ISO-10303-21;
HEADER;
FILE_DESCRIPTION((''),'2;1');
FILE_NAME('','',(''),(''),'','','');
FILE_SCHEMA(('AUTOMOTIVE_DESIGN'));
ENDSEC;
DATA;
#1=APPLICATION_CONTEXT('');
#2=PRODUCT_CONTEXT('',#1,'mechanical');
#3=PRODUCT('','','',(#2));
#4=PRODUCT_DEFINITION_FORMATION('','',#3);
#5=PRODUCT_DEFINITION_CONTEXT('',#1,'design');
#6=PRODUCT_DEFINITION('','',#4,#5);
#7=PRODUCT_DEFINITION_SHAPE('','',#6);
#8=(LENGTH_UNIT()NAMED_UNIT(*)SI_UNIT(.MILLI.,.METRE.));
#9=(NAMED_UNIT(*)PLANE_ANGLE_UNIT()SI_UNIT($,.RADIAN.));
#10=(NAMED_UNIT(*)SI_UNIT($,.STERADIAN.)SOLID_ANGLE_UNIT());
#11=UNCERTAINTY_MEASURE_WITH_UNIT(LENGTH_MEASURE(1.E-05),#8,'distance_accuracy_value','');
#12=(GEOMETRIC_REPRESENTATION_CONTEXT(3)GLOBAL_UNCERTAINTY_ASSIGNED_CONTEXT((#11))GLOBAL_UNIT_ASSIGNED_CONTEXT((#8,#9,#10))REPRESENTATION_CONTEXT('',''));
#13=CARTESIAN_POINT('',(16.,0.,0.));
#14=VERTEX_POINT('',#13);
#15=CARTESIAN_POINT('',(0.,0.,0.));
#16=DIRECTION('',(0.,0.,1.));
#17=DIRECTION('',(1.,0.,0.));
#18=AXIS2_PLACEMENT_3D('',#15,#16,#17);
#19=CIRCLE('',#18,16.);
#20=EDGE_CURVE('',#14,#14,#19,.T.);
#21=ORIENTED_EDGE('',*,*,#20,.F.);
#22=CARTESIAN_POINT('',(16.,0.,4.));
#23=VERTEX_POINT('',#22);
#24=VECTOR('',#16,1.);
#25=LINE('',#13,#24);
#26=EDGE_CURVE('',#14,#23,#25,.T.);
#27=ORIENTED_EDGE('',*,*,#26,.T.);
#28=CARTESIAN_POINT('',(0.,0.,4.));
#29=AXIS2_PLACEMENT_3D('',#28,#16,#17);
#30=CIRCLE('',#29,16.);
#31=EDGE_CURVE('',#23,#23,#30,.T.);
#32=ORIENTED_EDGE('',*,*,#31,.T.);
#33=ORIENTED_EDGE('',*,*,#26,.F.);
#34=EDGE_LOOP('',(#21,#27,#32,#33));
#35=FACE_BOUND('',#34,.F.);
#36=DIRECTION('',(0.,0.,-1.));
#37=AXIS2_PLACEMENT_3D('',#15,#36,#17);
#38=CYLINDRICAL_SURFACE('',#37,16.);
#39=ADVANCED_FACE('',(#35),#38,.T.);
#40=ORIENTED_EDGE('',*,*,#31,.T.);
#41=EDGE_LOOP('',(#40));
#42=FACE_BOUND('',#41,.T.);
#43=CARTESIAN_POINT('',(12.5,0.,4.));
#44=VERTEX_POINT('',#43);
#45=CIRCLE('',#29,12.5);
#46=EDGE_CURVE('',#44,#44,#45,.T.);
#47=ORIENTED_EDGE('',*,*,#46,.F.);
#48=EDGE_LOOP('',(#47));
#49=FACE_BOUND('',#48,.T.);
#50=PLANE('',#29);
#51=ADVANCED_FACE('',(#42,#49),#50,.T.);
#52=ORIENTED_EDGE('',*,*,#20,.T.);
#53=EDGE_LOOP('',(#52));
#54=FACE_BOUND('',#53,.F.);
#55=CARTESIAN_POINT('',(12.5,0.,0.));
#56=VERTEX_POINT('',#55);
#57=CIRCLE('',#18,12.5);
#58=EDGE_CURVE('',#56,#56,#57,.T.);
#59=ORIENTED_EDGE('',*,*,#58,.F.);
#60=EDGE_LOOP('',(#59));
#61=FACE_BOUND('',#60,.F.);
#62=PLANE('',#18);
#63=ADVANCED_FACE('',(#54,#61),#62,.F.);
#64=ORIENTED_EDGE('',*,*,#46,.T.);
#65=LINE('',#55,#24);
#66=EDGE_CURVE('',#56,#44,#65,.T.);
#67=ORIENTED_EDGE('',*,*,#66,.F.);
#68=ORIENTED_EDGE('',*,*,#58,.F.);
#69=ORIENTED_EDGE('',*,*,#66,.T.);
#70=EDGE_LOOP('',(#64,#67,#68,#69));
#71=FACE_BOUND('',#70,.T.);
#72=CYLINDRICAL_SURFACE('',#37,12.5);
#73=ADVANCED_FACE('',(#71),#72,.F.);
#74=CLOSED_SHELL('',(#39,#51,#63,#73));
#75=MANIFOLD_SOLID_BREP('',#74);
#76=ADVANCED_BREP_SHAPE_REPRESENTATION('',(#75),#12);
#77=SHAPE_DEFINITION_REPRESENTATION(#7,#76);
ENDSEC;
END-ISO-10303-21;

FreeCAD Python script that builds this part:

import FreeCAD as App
import Part
import Sketcher
from FreeCAD import Vector

doc = App.newDocument("Part")
params = doc.addObject("Spreadsheet::Sheet", "Params")
for row, (alias, value) in enumerate([
    ("sketch1_diameter", "32 mm"),
    ("sketch1_diameter2", "25 mm"),
    ("pad1_length", "4 mm"),
], start=1):
    params.set(f"A{row}", alias)
    params.set(f"B{row}", "=" + value)
    params.setAlias(f"B{row}", alias)

body = doc.addObject("PartDesign::Body", "Body")

# Sketch on XY plane
sketch1 = body.newObject("Sketcher::SketchObject", "Sketch")
sketch1.AttachmentSupport = (doc.getObject("XY_Plane"), [""])
sketch1.MapMode = "FlatFace"
sketch1.addGeometry([
    Part.Circle(Vector(0, 0, 0), Vector(0, 0, 1), 16),
    Part.Circle(Vector(0, 0, 0), Vector(0, 0, 1), 12),
], False)
sketch1.addConstraint([
    Sketcher.Constraint("Coincident", 0, 3, -1, 1),
    Sketcher.Constraint("Coincident", 1, 3, -1, 1),
    Sketcher.Constraint("Diameter", 0, 32.0),
    Sketcher.Constraint("Diameter", 1, 25.0),
])
sketch1.setExpression("Constraints[2]", "Params.sketch1_diameter")
sketch1.setExpression("Constraints[3]", "Params.sketch1_diameter2")
pad1 = body.newObject("PartDesign::Pad", "Pad")
pad1.Profile = sketch1
pad1.setExpression("Length", "Params.pad1_length")

doc.recompute()
